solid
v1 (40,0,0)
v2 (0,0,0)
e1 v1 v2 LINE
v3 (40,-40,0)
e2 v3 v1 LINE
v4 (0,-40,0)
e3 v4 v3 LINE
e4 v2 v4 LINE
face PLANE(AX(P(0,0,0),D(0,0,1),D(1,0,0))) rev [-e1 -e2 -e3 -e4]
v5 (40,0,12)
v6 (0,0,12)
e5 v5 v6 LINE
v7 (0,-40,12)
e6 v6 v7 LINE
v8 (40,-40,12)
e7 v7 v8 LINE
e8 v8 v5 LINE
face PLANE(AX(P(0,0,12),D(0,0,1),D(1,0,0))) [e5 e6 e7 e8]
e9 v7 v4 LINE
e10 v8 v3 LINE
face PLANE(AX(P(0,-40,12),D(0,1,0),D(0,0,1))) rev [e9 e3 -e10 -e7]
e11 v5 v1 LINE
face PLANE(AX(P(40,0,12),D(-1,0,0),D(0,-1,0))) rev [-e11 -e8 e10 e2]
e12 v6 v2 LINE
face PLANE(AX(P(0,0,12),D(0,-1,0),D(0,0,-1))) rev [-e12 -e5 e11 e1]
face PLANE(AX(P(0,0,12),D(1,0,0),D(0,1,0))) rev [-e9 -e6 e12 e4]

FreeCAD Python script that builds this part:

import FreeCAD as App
import Part
import Sketcher
from FreeCAD import Vector

doc = App.newDocument("Part")
body = doc.addObject("PartDesign::Body", "Body")

sketch1 = body.newObject("Sketcher::SketchObject", "Sketch")
sketch1.AttachmentSupport = (doc.getObject("XY_Plane"), [""])
sketch1.MapMode = "FlatFace"
sketch1.addGeometry([
    Part.LineSegment(Vector(0, 0, 0), Vector(0, -40, 0)),
    Part.LineSegment(Vector(0, -40, 0), Vector(40, -40, 0)),
    Part.LineSegment(Vector(40, -40, 0), Vector(40, 0, 0)),
    Part.LineSegment(Vector(40, 0, 0), Vector(0, 0, 0)),
], False)
sketch1.addConstraint([
    Sketcher.Constraint("Coincident", 0, 2, 1, 1),
    Sketcher.Constraint("Coincident", 1, 2, 2, 1),
    Sketcher.Constraint("Coincident", 2, 2, 3, 1),
    Sketcher.Constraint("Coincident", 3, 2, 0, 1),
    Sketcher.Constraint("Vertical", 0),
    Sketcher.Constraint("Horizontal", 1),
    Sketcher.Constraint("Vertical", 2),
    Sketcher.Constraint("Horizontal", 3),
    Sketcher.Constraint("Coincident", 3, 2, -1, 1),
    Sketcher.Constraint("Equal", 3, 0),
    Sketcher.Constraint("DistanceX", 1, 1, 1, 2, 40.0),
])
pad1 = body.newObject("PartDesign::Pad", "Pad")
pad1.Profile = sketch1
pad1.Length = 12

doc.recompute()
